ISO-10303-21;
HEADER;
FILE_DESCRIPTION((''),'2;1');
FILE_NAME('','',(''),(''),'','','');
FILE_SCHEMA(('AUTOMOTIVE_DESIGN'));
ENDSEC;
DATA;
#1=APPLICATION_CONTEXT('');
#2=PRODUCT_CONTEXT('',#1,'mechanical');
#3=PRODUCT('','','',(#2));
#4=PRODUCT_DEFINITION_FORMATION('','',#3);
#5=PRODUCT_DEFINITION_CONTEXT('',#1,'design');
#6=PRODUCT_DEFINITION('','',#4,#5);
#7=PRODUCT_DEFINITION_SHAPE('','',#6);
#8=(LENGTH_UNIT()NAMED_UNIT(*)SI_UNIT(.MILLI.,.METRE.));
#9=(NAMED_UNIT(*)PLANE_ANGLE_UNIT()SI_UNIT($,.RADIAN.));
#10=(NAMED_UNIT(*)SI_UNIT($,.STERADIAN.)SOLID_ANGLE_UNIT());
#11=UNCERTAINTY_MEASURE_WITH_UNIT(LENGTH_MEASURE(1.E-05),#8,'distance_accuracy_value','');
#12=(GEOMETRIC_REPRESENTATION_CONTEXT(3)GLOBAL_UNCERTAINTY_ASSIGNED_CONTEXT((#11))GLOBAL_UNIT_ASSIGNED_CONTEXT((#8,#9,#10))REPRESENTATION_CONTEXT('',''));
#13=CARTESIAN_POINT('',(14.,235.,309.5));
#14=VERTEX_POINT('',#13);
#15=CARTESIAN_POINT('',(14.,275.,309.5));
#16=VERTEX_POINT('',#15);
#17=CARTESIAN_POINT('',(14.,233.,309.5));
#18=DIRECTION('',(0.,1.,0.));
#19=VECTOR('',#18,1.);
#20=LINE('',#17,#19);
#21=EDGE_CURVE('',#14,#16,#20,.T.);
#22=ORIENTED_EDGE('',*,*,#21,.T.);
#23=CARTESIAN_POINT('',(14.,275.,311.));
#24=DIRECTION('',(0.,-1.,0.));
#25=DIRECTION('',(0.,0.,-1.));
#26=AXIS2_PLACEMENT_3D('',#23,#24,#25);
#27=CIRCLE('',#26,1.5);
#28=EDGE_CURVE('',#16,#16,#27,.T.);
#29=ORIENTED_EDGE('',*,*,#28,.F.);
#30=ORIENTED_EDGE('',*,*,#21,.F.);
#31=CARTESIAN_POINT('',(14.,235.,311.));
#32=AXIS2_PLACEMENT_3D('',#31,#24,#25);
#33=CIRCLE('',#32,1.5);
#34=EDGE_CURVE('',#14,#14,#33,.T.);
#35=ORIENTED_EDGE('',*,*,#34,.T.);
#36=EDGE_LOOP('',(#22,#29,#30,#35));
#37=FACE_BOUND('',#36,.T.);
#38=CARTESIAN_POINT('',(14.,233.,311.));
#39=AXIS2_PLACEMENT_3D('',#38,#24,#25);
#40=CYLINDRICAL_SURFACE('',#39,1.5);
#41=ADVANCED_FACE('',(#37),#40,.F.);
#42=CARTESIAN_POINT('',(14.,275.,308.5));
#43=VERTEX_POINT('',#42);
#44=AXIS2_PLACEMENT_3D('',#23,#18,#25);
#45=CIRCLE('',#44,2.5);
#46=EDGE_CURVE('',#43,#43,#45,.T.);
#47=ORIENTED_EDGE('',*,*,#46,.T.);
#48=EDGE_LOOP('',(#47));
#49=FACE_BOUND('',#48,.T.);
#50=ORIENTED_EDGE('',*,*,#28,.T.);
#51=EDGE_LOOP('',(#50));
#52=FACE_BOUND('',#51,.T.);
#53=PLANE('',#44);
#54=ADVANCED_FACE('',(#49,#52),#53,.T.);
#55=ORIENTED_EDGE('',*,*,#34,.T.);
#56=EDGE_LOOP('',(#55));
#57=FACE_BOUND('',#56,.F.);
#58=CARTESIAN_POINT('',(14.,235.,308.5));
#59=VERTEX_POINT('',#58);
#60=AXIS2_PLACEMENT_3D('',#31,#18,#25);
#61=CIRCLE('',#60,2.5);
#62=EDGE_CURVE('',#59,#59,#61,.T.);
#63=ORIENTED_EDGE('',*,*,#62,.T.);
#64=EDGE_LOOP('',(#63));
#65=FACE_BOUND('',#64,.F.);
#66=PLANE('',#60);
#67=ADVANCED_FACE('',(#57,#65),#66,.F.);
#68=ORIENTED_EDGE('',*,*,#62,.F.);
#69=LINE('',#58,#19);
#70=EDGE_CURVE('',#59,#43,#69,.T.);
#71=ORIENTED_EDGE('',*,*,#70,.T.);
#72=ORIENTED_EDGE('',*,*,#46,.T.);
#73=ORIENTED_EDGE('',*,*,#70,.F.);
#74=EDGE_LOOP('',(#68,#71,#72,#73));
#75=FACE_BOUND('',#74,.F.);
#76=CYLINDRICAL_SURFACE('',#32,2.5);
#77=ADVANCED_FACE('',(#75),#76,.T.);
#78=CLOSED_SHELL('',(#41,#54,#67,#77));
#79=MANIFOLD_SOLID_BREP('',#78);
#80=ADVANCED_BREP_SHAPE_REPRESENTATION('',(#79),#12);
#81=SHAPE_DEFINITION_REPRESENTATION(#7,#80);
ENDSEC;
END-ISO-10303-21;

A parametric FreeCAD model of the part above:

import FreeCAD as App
import Part
import Sketcher
from FreeCAD import Vector
Q = App.Units.Quantity

doc = App.newDocument("Part")
body = doc.addObject("PartDesign::Body", "Body")

sketch1 = body.newObject("Sketcher::SketchObject", "Sketch")
sketch1.AttachmentSupport = (doc.getObject("XY_Plane"), [""])
sketch1.MapMode = "FlatFace"
sketch1.addGeometry(Part.Circle(Vector(0, 0, 0), Vector(0, 0, 1), 1.5), False)
sketch1.addConstraint(Sketcher.Constraint("Coincident", 0, 3, -1, 1))
sketch1.addConstraint(Sketcher.Constraint("Diameter", 0, Q("3 mm")))
pad1 = body.newObject("PartDesign::Pad", "Pad")
pad1.Profile = sketch1
pad1.Length = 44
body2 = doc.addObject("PartDesign::Body", "Body001")
doc.recompute()

body.Placement = App.Placement(Vector(0, 0, 0), App.Rotation(Vector(0, 1, 0), 90))
boolean = body2.newObject("PartDesign::Boolean", "Boolean")
boolean.Type = "Fuse"
boolean.addObjects([body])
body3 = doc.addObject("PartDesign::Body", "Body002")
doc.recompute()

body2.Placement = App.Placement(Vector(-2, 0, 0), App.Rotation(Vector(0, 0, 1), 0))
boolean2 = body3.newObject("PartDesign::Boolean", "Boolean001")
boolean2.Type = "Fuse"
boolean2.addObjects([body2])
body4 = doc.addObject("PartDesign::Body", "Body003")

sketch2 = body4.newObject("Sketcher::SketchObject", "Sketch001")
sketch2.AttachmentSupport = (doc.getObject("XY_Plane003"), [""])
sketch2.MapMode = "FlatFace"
sketch2.addGeometry(Part.Circle(Vector(0, 0, 0), Vector(0, 0, 1), 2.5), False)
sketch2.addConstraint(Sketcher.Constraint("Coincident", 0, 3, -1, 1))
sketch2.addConstraint(Sketcher.Constraint("Diameter", 0, Q("5 mm")))
pad2 = body4.newObject("PartDesign::Pad", "Pad001")
pad2.Profile = sketch2
pad2.Length = 40
body5 = doc.addObject("PartDesign::Body", "Body004")
doc.recompute()

body4.Placement = App.Placement(Vector(0, 0, 0), App.Rotation(Vector(0, 1, 0), 90))
boolean3 = body5.newObject("PartDesign::Boolean", "Boolean002")
boolean3.Type = "Fuse"
boolean3.addObjects([body4])
doc.recompute()

boolean4 = body5.newObject("PartDesign::Boolean", "Boolean003")
boolean4.Type = "Cut"
boolean4.addObjects([body3])
body6 = doc.addObject("PartDesign::Body", "Body005")
doc.recompute()

body5.Placement = App.Placement(Vector(14, 235, 311), App.Rotation(Vector(0, 0, 1), 90))
boolean5 = body6.newObject("PartDesign::Boolean", "Boolean004")
boolean5.Type = "Fuse"
boolean5.addObjects([body5])

doc.recompute()
